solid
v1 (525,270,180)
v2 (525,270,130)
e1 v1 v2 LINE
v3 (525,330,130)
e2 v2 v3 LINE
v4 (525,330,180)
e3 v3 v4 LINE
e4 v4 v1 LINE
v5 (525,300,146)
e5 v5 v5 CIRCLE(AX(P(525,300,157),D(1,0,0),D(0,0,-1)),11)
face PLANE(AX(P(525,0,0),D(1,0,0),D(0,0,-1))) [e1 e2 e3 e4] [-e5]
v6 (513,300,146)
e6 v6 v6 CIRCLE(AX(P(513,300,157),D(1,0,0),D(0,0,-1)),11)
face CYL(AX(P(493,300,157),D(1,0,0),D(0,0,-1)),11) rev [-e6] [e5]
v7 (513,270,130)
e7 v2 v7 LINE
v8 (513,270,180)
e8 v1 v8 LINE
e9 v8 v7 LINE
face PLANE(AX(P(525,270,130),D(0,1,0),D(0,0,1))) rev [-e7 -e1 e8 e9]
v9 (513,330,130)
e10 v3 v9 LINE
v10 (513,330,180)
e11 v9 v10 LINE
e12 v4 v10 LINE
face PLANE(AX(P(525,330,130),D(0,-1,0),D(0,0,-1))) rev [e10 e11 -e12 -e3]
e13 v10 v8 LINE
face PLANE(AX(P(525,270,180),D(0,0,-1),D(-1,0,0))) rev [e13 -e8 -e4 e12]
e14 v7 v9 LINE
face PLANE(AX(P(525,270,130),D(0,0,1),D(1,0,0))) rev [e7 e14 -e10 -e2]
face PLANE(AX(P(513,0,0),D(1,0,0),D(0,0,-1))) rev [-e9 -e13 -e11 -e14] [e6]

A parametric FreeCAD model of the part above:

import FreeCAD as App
import Part
import Sketcher


def add_polygon(sketch, points):
    """Adds a closed chain of lines whose ends are joined by coincident constraints."""
    first, n = sketch.GeometryCount, len(points)
    for a, b in zip(points, points[1:] + points[:1]):
        sketch.addGeometry(Part.LineSegment(App.Vector(*a, 0), App.Vector(*b, 0)), False)
    for i in range(n):
        sketch.addConstraint(Sketcher.Constraint("Coincident", first + i, 2, first + (i + 1) % n, 1))

doc = App.newDocument("Part")
params = doc.addObject("Spreadsheet::Sheet", "Params")
for row, (alias, value) in enumerate([
    ("sketch1_width", "60 mm"),
    ("sketch1_height", "50 mm"),
    ("pad1_length", "12 mm"),
    ("sketch2_diameter", "22 mm"),
    ("pocket1_length", "32 mm"),
], start=1):
    params.set(f"A{row}", alias)
    params.set(f"B{row}", "=" + value)
    params.setAlias(f"B{row}", alias)

body = doc.addObject("PartDesign::Body", "Body")

# Sketch on YZ plane
sketch1 = body.newObject("Sketcher::SketchObject", "Sketch")
sketch1.AttachmentSupport = (doc.getObject("YZ_Plane"), [""])
sketch1.MapMode = "FlatFace"
sketch1.AttachmentOffset = App.Placement(App.Vector(0, 0, 513), App.Rotation())
add_polygon(sketch1, [(330, 180), (270, 180), (270, 130), (330, 130)])  # lines 0-3
sketch1.addConstraint(Sketcher.Constraint("Horizontal", 0))
sketch1.addConstraint(Sketcher.Constraint("Vertical", 1))
sketch1.addConstraint(Sketcher.Constraint("Horizontal", 2))
sketch1.addConstraint(Sketcher.Constraint("Vertical", 3))
sketch1.addConstraint(Sketcher.Constraint("DistanceX", 0, 2, 0, 1, 60.0))
sketch1.addConstraint(Sketcher.Constraint("DistanceY", 1, 2, 1, 1, 50.0))
sketch1.addConstraint(Sketcher.Constraint("DistanceX", -1, 1, 0, 2, 270.0))
sketch1.addConstraint(Sketcher.Constraint("DistanceY", -1, 1, 0, 2, 180.0))
sketch1.setExpression("Constraints[8]", "Params.sketch1_width")
sketch1.setExpression("Constraints[9]", "Params.sketch1_height")
pad1 = body.newObject("PartDesign::Pad", "Pad")
pad1.Profile = sketch1
pad1.setExpression("Length", "Params.pad1_length")

# Sketch on YZ plane
sketch2 = body.newObject("Sketcher::SketchObject", "Sketch001")
sketch2.AttachmentSupport = (doc.getObject("YZ_Plane"), [""])
sketch2.MapMode = "FlatFace"
sketch2.AttachmentOffset = App.Placement(App.Vector(0, 0, 525), App.Rotation())
sketch2.addGeometry(Part.Circle(App.Vector(300, 157, 0), App.Vector(0, 0, 1), 11), False)
sketch2.addConstraint(Sketcher.Constraint("Diameter", 0, 22.0))
sketch2.addConstraint(Sketcher.Constraint("DistanceX", -1, 1, 0, 3, 300.0))
sketch2.addConstraint(Sketcher.Constraint("DistanceY", -1, 1, 0, 3, 157.0))
sketch2.setExpression("Constraints[0]", "Params.sketch2_diameter")
pocket1 = body.newObject("PartDesign::Pocket", "Pocket")
pocket1.Profile = sketch2
pocket1.setExpression("Length", "Params.pocket1_length")

doc.recompute()
